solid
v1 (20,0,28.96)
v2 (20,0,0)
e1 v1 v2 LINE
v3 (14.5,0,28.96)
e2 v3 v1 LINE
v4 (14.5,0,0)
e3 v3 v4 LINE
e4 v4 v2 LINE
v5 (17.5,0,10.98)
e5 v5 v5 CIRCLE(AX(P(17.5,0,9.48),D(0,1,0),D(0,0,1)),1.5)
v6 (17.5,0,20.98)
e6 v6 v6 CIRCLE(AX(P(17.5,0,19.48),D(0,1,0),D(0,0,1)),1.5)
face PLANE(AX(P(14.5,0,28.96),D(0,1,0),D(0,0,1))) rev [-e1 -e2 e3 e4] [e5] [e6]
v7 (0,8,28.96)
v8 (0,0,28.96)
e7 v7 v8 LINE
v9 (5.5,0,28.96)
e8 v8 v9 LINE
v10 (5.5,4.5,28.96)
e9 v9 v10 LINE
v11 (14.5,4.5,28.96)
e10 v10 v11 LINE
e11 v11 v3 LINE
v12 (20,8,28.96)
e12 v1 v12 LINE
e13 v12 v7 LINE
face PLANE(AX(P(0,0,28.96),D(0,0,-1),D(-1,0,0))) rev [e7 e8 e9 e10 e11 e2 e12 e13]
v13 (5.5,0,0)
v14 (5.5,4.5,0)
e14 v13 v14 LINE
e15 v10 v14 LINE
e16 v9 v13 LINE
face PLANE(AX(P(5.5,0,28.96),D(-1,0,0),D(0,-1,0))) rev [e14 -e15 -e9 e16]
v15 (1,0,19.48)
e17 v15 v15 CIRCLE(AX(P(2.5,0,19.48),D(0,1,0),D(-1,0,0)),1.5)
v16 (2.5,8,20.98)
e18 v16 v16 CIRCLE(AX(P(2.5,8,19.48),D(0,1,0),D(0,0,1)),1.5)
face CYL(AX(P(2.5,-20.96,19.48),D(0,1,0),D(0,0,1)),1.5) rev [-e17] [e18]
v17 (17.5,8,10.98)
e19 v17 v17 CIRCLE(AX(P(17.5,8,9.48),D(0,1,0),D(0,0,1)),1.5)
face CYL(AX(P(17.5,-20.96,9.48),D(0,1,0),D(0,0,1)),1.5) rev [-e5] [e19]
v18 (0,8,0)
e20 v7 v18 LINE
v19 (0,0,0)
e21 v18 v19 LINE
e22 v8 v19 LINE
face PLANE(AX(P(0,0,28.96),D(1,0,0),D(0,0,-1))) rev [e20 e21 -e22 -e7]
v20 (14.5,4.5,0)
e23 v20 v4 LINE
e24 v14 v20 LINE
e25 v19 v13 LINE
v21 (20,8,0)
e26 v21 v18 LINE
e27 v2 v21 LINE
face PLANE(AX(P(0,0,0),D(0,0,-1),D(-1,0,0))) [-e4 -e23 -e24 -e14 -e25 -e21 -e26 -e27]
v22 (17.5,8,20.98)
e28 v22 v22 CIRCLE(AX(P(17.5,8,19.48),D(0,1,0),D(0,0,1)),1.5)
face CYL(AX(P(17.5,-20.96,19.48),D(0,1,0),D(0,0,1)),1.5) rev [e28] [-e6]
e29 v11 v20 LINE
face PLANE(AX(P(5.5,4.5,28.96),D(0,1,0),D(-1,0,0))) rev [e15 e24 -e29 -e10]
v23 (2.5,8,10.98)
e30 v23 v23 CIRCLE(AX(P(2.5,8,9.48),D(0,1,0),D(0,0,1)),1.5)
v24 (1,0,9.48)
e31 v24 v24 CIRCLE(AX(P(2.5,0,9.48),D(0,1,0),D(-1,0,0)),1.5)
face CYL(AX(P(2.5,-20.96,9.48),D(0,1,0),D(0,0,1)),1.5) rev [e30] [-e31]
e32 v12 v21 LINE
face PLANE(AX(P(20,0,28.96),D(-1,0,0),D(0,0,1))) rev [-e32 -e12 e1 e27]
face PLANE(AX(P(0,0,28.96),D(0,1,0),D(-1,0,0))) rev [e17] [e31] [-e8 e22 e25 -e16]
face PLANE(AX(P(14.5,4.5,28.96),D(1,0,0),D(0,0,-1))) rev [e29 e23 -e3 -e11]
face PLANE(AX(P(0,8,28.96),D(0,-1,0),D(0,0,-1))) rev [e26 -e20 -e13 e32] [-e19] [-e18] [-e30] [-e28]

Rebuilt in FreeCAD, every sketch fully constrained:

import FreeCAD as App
import Part
import Sketcher


def add_polygon(sketch, points):
    """Adds a closed chain of lines whose ends are joined by coincident constraints."""
    first, n = sketch.GeometryCount, len(points)
    for a, b in zip(points, points[1:] + points[:1]):
        sketch.addGeometry(Part.LineSegment(App.Vector(*a, 0), App.Vector(*b, 0)), False)
    for i in range(n):
        sketch.addConstraint(Sketcher.Constraint("Coincident", first + i, 2, first + (i + 1) % n, 1))

doc = App.newDocument("Part")
params = doc.addObject("Spreadsheet::Sheet", "Params")
for row, (alias, value) in enumerate([
    ("sketch1_width", "9 mm"),
    ("sketch1_width2", "20 mm"),
    ("sketch1_height", "8 mm"),
    ("sketch1_height2", "4.5 mm"),
    ("pad1_length", "28.96 mm"),
    ("sketch2_diameter", "3 mm"),
    ("pocket1_length", "28.96 mm"),
], start=1):
    params.set(f"A{row}", alias)
    params.set(f"B{row}", "=" + value)
    params.setAlias(f"B{row}", alias)

body = doc.addObject("PartDesign::Body", "Body")

# Sketch on XY plane
sketch1 = body.newObject("Sketcher::SketchObject", "Sketch")
sketch1.AttachmentSupport = (doc.getObject("XY_Plane"), [""])
sketch1.MapMode = "FlatFace"
add_polygon(sketch1, [(5.5, 0), (5.5, 4.5), (14.5, 4.5), (14.5, 0), (20, 0), (20, 8), (0, 8), (0, 0)])  # lines 0-7
sketch1.addConstraint([
    Sketcher.Constraint("Vertical", 0),
    Sketcher.Constraint("Horizontal", 1),
    Sketcher.Constraint("Vertical", 2),
    Sketcher.Constraint("Horizontal", 3),
    Sketcher.Constraint("Vertical", 4),
    Sketcher.Constraint("Horizontal", 5),
    Sketcher.Constraint("Vertical", 6),
    Sketcher.Constraint("Horizontal", 7),
    Sketcher.Constraint("Coincident", 6, 2, -1, 1),
    Sketcher.Constraint("PointOnObject", 2, 2, -1),
    Sketcher.Constraint("Equal", 3, 7),
    Sketcher.Constraint("DistanceX", 1, 1, 1, 2, 9.0),
    Sketcher.Constraint("DistanceX", 5, 2, 5, 1, 20.0),
    Sketcher.Constraint("DistanceY", 4, 1, 4, 2, 8.0),
    Sketcher.Constraint("DistanceY", 0, 1, 0, 2, 4.5),
])
sketch1.setExpression("Constraints[19]", "Params.sketch1_width")
sketch1.setExpression("Constraints[20]", "Params.sketch1_width2")
sketch1.setExpression("Constraints[21]", "Params.sketch1_height")
sketch1.setExpression("Constraints[22]", "Params.sketch1_height2")
pad1 = body.newObject("PartDesign::Pad", "Pad")
pad1.Profile = sketch1
pad1.setExpression("Length", "Params.pad1_length")

# Sketch on XZ plane
sketch2 = body.newObject("Sketcher::SketchObject", "Sketch001")
sketch2.AttachmentSupport = (doc.getObject("XZ_Plane"), [""])
sketch2.MapMode = "FlatFace"
sketch2.AttachmentOffset = App.Placement(App.Vector(0, 0, -8), App.Rotation())
sketch2.addGeometry([
    Part.Circle(App.Vector(17.5, 9.48, 0), App.Vector(0, 0, 1), 1.5),
    Part.Circle(App.Vector(17.5, 19.48, 0), App.Vector(0, 0, 1), 1.5),
    Part.Circle(App.Vector(2.5, 19.48, 0), App.Vector(0, 0, 1), 1.5),
    Part.Circle(App.Vector(2.5, 9.48, 0), App.Vector(0, 0, 1), 1.5),
], False)
sketch2.addConstraint([
    Sketcher.Constraint("Equal", 0, 1),
    Sketcher.Constraint("Equal", 1, 2),
    Sketcher.Constraint("Equal", 2, 3),
    Sketcher.Constraint("Horizontal", 1, 3, 2, 3),
    Sketcher.Constraint("Horizontal", 0, 3, 3, 3),
    Sketcher.Constraint("Vertical", 0, 3, 1, 3),
    Sketcher.Constraint("Vertical", 2, 3, 3, 3),
    Sketcher.Constraint("Diameter", 0, 3.0),
    Sketcher.Constraint("DistanceY", 0, 3, 1, 3, 10.0),
    Sketcher.Constraint("DistanceX", 2, 3, 1, 3, 15.0),
    Sketcher.Constraint("DistanceX", -1, 1, 0, 3, 17.5),
    Sketcher.Constraint("DistanceY", -1, 1, 0, 3, 9.48),
])
sketch2.setExpression("Constraints[7]", "Params.sketch2_diameter")
pocket1 = body.newObject("PartDesign::Pocket", "Pocket")
pocket1.Profile = sketch2
pocket1.setExpression("Length", "Params.pocket1_length")
pocket1.Reversed = True

doc.recompute()
